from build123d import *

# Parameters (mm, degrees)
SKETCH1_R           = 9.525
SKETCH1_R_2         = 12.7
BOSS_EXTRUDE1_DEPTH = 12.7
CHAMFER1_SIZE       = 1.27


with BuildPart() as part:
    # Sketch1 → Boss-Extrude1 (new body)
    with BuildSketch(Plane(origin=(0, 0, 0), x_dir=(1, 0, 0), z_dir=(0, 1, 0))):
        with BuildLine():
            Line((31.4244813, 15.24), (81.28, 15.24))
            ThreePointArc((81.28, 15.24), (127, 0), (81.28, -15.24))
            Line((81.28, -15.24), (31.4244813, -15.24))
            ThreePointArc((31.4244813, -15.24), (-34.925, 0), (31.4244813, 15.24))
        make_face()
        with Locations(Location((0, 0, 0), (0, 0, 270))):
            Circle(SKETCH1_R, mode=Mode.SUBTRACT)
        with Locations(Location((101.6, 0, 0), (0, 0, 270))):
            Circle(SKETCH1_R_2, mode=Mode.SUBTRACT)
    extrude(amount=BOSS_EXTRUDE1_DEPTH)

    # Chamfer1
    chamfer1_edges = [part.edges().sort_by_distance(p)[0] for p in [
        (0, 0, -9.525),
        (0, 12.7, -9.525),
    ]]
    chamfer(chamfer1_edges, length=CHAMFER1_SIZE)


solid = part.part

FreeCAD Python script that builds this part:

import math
import FreeCAD as App
import Part
import Sketcher

V = App.Vector
Q = App.Units.Quantity


def edges_at(feature, points):
    """Names of the edges that pass closest to the given points."""
    edges = feature.Shape.Edges
    near = lambda p: min(range(len(edges)), key=lambda i: edges[i].distToShape(Part.Vertex(*p))[0])
    return sorted({f"Edge{near(p) + 1}" for p in points})

doc = App.newDocument("Part")
body = doc.addObject("PartDesign::Body", "Body")

# Sketch on XZ plane
sketch1 = body.newObject("Sketcher::SketchObject", "Sketch")
sketch1.AttachmentSupport = (doc.getObject("XZ_Plane"), [""])
sketch1.MapMode = "FlatFace"
sketch1.addGeometry([
    Part.LineSegment(V(81, -15, 0), V(31, -15, 0)),  # 0
    Part.ArcOfCircle(Part.Circle(V(0, 0, 0), V(0, 0, 1), 35), math.radians(26), math.radians(334)),  # 1
    Part.LineSegment(V(31, 15, 0), V(81, 15, 0)),  # 2
    Part.ArcOfCircle(Part.Circle(V(102, 0, 0), V(0, 0, 1), 25), math.radians(-143), math.radians(143)),  # 3
    Part.Circle(V(102, 0, 0), V(0, 0, 1), 13),  # 4
    Part.Circle(V(0, 0, 0), V(0, 0, 1), 10),  # 5
], False)
sketch1.addConstraint([
    Sketcher.Constraint("Coincident", 0, 2, 1, 2),
    Sketcher.Constraint("Coincident", 1, 1, 2, 1),
    Sketcher.Constraint("Coincident", 2, 2, 3, 2),
    Sketcher.Constraint("Coincident", 3, 1, 0, 1),
    Sketcher.Constraint("Horizontal", 0),
    Sketcher.Constraint("Horizontal", 2),
    Sketcher.Constraint("Coincident", 1, 3, -1, 1),
    Sketcher.Constraint("Coincident", 5, 3, -1, 1),
    Sketcher.Constraint("Coincident", 4, 3, 3, 3),
    Sketcher.Constraint("Symmetric", 2, 2, 3, 1, -1),
    Sketcher.Constraint("Diameter", 4, Q("1 in")),
    Sketcher.Constraint("Radius", 3, Q("1 in")),
    Sketcher.Constraint("Diameter", 5, Q("0.75 in")),
    Sketcher.Constraint("DistanceX", -1, 1, 3, 3, Q("4 in")),
    Sketcher.Constraint("Radius", 1, Q("1.375 in")),
    Sketcher.Constraint("DistanceY", 0, 2, -1, 1, Q("0.6 in")),
])
pad1 = body.newObject("PartDesign::Pad", "Pad")
pad1.Profile = sketch1
pad1.Length = Q("0.5 in")
pad1.Reversed = True
doc.recompute()

chamfer = body.newObject("PartDesign::Chamfer", "Chamfer")
chamfer.Base = (pad1, edges_at(pad1, [(0, 0, -9.525), (0, 12.7, -9.525)]))
chamfer.Size = Q("0.05 in")

doc.recompute()
